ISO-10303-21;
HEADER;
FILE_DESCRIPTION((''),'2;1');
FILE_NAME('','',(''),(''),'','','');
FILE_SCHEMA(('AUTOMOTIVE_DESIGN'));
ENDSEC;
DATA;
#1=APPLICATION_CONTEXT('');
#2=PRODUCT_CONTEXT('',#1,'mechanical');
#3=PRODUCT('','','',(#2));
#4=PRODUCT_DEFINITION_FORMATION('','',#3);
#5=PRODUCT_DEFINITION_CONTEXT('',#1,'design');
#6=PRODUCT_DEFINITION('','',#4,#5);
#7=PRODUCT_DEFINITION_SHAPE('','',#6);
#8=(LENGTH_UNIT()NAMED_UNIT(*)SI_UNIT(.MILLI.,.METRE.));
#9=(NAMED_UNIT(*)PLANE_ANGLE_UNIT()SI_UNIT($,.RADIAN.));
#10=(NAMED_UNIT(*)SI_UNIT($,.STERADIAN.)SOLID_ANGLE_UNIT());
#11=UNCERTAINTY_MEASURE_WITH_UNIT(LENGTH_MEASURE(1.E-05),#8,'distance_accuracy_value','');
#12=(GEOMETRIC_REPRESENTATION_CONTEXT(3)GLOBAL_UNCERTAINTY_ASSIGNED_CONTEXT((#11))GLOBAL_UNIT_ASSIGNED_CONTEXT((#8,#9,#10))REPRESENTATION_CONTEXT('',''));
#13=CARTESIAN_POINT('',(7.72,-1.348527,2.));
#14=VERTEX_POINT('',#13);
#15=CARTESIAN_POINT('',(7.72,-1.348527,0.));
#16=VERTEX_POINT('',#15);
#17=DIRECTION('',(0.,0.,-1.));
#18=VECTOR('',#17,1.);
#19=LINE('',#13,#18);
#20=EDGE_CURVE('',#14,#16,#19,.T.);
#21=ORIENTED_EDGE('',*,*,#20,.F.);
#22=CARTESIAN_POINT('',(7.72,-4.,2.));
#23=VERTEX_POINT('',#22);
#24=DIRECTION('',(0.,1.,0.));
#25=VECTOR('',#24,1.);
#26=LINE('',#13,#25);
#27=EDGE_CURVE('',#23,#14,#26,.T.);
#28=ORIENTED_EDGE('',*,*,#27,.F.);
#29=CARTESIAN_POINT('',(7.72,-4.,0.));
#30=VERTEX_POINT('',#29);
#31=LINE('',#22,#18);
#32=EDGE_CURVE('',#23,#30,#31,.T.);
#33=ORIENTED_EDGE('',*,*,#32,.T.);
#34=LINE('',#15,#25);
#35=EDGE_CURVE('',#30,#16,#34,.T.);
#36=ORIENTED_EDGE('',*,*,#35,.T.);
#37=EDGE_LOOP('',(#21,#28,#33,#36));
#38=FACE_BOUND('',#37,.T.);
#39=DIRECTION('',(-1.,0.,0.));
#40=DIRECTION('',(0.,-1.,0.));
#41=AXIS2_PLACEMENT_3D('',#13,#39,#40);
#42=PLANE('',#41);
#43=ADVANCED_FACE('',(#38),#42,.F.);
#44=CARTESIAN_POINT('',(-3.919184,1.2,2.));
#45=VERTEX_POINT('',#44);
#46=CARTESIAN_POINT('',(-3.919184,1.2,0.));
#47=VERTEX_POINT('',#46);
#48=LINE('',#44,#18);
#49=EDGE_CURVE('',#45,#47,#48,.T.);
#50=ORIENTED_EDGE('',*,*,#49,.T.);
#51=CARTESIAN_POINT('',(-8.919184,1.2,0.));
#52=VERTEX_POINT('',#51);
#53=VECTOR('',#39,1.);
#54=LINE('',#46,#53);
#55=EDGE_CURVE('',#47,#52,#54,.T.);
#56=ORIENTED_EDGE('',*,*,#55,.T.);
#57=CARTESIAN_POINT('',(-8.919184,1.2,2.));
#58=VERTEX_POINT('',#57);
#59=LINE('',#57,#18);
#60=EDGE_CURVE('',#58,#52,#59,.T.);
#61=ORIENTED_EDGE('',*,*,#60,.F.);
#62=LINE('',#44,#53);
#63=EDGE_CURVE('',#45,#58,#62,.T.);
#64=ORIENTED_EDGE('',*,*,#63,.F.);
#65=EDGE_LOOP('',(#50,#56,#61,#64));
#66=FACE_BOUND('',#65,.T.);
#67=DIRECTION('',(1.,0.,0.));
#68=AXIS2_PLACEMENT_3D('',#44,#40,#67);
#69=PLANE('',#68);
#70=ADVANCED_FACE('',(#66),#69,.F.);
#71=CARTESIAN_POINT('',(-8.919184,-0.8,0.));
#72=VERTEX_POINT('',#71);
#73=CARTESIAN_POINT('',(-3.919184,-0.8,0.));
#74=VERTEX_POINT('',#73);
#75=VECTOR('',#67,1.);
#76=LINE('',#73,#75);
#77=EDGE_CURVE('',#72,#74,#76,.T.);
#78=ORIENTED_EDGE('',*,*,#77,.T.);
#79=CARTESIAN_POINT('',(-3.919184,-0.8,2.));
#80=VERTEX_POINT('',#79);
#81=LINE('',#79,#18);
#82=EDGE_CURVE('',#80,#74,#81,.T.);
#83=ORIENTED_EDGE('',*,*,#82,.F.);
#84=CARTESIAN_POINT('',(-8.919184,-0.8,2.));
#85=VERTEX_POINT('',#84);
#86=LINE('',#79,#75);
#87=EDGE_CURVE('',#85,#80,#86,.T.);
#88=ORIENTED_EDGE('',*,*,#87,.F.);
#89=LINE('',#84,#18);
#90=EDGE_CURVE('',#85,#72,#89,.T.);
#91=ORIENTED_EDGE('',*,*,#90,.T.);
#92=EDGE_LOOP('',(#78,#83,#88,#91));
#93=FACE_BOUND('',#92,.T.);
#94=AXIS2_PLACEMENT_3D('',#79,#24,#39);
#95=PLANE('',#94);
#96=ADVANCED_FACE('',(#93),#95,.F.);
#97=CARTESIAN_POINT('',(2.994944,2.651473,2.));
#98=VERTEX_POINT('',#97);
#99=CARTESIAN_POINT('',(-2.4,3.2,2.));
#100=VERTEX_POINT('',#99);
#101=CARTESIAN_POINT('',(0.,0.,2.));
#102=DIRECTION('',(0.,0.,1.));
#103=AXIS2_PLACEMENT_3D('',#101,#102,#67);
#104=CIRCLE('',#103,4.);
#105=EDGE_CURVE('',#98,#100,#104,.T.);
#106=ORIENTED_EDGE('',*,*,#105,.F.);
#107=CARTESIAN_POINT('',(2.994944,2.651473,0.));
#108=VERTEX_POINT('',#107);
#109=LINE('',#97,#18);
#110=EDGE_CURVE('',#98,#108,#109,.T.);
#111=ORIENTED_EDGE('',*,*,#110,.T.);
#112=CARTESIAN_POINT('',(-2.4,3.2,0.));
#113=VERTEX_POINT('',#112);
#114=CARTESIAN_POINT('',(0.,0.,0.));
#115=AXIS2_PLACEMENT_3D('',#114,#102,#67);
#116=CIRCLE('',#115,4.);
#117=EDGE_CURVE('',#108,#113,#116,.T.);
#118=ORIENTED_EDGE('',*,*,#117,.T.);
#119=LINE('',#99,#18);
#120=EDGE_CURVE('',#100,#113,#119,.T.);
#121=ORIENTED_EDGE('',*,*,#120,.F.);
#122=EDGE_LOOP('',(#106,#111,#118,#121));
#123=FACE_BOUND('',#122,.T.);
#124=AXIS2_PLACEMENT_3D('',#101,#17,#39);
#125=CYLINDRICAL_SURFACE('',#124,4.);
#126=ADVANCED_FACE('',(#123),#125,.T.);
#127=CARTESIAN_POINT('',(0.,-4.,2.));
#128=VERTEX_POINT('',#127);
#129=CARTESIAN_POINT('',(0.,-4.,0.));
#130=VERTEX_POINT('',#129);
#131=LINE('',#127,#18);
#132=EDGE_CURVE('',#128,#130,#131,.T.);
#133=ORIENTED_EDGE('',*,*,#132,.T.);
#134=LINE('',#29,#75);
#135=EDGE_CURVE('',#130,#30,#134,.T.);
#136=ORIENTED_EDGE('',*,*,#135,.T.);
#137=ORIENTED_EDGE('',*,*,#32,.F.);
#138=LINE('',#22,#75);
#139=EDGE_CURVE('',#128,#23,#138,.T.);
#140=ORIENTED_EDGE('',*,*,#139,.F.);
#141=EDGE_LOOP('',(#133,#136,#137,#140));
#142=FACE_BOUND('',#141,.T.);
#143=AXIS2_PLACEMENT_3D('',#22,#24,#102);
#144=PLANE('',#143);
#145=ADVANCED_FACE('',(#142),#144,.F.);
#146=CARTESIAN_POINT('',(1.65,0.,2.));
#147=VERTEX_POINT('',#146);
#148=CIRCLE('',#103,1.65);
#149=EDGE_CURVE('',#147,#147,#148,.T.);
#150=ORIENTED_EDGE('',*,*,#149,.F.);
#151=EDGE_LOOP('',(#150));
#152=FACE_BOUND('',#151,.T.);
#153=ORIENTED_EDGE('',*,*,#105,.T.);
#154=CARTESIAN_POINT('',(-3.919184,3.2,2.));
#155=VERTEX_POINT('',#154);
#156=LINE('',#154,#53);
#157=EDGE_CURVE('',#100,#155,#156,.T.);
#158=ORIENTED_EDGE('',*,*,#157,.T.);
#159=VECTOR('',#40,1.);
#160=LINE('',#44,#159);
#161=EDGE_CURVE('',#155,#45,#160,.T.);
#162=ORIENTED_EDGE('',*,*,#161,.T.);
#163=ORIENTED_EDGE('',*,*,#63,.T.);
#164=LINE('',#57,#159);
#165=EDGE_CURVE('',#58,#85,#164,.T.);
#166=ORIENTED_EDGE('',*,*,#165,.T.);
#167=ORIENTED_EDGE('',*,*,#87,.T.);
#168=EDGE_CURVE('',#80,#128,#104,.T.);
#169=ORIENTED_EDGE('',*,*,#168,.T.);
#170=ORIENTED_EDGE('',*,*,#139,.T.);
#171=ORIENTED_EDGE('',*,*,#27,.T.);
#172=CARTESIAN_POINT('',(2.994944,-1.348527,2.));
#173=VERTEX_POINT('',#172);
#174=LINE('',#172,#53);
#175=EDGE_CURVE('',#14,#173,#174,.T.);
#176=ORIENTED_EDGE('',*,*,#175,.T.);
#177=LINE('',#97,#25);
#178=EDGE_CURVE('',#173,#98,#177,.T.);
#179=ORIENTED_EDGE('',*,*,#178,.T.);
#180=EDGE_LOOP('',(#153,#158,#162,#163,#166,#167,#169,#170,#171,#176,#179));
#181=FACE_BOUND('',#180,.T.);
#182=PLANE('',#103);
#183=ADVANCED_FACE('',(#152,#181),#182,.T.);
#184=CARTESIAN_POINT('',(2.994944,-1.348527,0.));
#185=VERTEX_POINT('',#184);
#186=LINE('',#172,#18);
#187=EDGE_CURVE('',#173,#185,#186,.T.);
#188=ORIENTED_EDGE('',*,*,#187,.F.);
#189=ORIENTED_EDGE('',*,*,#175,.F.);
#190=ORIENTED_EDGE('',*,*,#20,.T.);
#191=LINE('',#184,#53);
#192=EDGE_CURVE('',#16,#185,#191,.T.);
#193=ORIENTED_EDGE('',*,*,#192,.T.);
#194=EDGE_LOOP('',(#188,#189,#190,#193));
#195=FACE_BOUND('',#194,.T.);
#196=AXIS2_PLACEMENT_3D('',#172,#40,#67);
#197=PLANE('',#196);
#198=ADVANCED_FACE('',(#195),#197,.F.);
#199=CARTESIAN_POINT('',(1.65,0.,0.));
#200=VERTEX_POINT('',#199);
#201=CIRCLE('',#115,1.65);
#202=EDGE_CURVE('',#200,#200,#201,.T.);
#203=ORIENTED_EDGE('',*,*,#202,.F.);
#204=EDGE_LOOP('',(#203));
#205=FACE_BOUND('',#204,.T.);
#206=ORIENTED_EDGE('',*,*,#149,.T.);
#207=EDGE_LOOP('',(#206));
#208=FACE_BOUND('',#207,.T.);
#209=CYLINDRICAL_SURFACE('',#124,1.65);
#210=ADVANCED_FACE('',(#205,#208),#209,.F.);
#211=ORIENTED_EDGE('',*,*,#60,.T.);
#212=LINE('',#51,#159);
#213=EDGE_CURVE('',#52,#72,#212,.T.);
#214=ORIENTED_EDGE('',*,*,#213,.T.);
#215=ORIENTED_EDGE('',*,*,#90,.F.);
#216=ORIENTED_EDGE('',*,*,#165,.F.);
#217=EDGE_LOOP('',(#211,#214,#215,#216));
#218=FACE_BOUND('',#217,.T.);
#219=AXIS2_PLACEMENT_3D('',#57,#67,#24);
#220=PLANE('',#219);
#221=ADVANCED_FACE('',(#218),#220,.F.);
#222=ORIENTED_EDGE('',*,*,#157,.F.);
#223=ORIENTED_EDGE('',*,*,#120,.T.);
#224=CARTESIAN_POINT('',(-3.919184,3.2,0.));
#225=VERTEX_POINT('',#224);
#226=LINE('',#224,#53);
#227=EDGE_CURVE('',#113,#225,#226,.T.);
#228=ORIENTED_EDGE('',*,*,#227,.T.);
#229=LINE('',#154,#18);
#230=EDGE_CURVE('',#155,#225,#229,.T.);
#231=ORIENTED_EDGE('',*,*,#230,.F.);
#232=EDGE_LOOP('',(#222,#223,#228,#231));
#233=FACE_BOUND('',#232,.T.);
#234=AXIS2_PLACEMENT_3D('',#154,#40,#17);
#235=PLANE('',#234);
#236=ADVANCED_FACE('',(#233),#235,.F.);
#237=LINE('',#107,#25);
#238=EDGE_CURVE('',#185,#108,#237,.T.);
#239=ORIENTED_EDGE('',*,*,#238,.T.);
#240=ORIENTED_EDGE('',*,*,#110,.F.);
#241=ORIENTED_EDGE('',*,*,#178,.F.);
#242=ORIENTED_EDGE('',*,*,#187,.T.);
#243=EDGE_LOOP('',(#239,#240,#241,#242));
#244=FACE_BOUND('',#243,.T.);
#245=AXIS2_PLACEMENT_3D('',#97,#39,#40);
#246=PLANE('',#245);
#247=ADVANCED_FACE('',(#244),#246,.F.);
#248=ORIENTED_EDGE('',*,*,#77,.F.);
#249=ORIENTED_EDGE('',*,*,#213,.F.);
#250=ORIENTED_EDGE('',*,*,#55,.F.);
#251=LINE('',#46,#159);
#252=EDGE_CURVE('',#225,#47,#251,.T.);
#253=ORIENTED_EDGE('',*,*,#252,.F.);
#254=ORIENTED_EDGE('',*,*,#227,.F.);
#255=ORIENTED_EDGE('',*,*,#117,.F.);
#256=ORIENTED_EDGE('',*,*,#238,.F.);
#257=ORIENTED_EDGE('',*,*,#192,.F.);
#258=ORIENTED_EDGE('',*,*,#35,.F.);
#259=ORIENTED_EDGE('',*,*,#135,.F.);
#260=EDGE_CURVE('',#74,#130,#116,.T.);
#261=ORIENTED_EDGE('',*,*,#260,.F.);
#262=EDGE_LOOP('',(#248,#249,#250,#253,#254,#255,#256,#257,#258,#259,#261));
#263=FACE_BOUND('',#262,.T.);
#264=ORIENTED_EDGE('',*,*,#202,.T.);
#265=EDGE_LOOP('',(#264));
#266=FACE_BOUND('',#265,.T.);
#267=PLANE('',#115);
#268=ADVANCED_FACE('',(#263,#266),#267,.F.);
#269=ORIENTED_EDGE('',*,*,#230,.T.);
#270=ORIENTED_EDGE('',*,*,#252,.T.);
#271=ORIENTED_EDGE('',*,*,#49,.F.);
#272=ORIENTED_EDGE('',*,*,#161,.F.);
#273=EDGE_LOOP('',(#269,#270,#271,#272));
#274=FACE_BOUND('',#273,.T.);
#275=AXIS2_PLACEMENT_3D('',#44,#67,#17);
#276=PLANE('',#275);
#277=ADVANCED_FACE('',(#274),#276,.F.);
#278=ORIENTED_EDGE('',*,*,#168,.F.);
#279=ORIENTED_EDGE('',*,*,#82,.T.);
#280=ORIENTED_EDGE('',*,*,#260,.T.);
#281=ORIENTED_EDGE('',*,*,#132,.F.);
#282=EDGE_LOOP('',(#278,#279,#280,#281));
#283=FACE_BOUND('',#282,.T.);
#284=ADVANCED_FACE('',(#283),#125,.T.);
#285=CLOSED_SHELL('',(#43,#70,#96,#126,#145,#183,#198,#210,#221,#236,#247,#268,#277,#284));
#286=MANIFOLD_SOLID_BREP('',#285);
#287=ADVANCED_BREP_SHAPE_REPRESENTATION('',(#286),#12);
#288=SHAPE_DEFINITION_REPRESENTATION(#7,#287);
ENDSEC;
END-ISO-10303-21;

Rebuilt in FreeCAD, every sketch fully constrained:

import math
import FreeCAD as App
import Part
import Sketcher

V = App.Vector
Q = App.Units.Quantity

doc = App.newDocument("Part")
body = doc.addObject("PartDesign::Body", "Body")

sketch1 = body.newObject("Sketcher::SketchObject", "Sketch")
sketch1.AttachmentSupport = (doc.getObject("XY_Plane"), [""])
sketch1.MapMode = "FlatFace"
sketch1.addGeometry(Part.LineSegment(V(0, -4, 0), V(7.72, -4, 0)), False)
sketch1.addGeometry(Part.LineSegment(V(7.72, -4, 0), V(7.72, -1.348527, 0)), False)
sketch1.addGeometry(Part.LineSegment(V(7.72, -1.348527, 0), V(2.994944, -1.348527, 0)), False)
sketch1.addGeometry(Part.LineSegment(V(2.994944, -1.348527, 0), V(2.994944, 2.651473, 0)), False)
sketch1.addGeometry(Part.ArcOfCircle(Part.Circle(V(0, 0, 0), V(0, 0, 1), 4), math.radians(41.518994), math.radians(126.869898)), False)
sketch1.addGeometry(Part.LineSegment(V(-2.4, 3.2, 0), V(-3.919184, 3.2, 0)), False)
sketch1.addGeometry(Part.LineSegment(V(-3.919184, 3.2, 0), V(-3.919184, 1.2, 0)), False)
sketch1.addGeometry(Part.LineSegment(V(-3.919184, 1.2, 0), V(-8.919184, 1.2, 0)), False)
sketch1.addGeometry(Part.LineSegment(V(-8.919184, 1.2, 0), V(-8.919184, -0.8, 0)), False)
sketch1.addGeometry(Part.LineSegment(V(-8.919184, -0.8, 0), V(-3.919184, -0.8, 0)), False)
sketch1.addGeometry(Part.ArcOfCircle(Part.Circle(V(0, 0, 0), V(0, 0, 1), 4), math.radians(-168.463041), math.radians(-90)), False)
sketch1.addGeometry(Part.Circle(V(0, 0, 0), V(0, 0, 1), 1.65), False)
sketch1.addConstraint(Sketcher.Constraint("Coincident", 0, 2, 1, 1))
sketch1.addConstraint(Sketcher.Constraint("Coincident", 1, 2, 2, 1))
sketch1.addConstraint(Sketcher.Constraint("Coincident", 2, 2, 3, 1))
sketch1.addConstraint(Sketcher.Constraint("Coincident", 3, 2, 4, 1))
sketch1.addConstraint(Sketcher.Constraint("Coincident", 4, 2, 5, 1))
sketch1.addConstraint(Sketcher.Constraint("Coincident", 5, 2, 6, 1))
sketch1.addConstraint(Sketcher.Constraint("Coincident", 6, 2, 7, 1))
sketch1.addConstraint(Sketcher.Constraint("Coincident", 7, 2, 8, 1))
sketch1.addConstraint(Sketcher.Constraint("Coincident", 8, 2, 9, 1))
sketch1.addConstraint(Sketcher.Constraint("Coincident", 9, 2, 10, 1))
sketch1.addConstraint(Sketcher.Constraint("Tangent", 10, 2, 0, 1))
sketch1.addConstraint(Sketcher.Constraint("Horizontal", 0))
sketch1.addConstraint(Sketcher.Constraint("Vertical", 1))
sketch1.addConstraint(Sketcher.Constraint("Horizontal", 2))
sketch1.addConstraint(Sketcher.Constraint("Vertical", 3))
sketch1.addConstraint(Sketcher.Constraint("Horizontal", 5))
sketch1.addConstraint(Sketcher.Constraint("Vertical", 6))
sketch1.addConstraint(Sketcher.Constraint("Horizontal", 7))
sketch1.addConstraint(Sketcher.Constraint("Vertical", 8))
sketch1.addConstraint(Sketcher.Constraint("Horizontal", 9))
sketch1.addConstraint(Sketcher.Constraint("Coincident", 4, 3, -1, 1))
sketch1.addConstraint(Sketcher.Constraint("Coincident", 10, 3, -1, 1))
sketch1.addConstraint(Sketcher.Constraint("Coincident", 11, 3, -1, 1))
sketch1.addConstraint(Sketcher.Constraint("Equal", 4, 10))
sketch1.addConstraint(Sketcher.Constraint("Vertical", 6, 2, 9, 2))
sketch1.addConstraint(Sketcher.Constraint("Equal", 6, 8))
sketch1.addConstraint(Sketcher.Constraint("Radius", 4, Q("4 mm")))
sketch1.addConstraint(Sketcher.Constraint("Diameter", 11, Q("3.3 mm")))
sketch1.addConstraint(Sketcher.Constraint("DistanceX", 7, 2, 7, 1, Q("5 mm")))
sketch1.addConstraint(Sketcher.Constraint("DistanceY", 3, 1, 3, 2, Q("4 mm")))
sketch1.addConstraint(Sketcher.Constraint("DistanceY", 6, 2, 6, 1, Q("2 mm")))
sketch1.addConstraint(Sketcher.Constraint("DistanceX", 0, 1, 0, 2, Q("7.72 mm")))
sketch1.addConstraint(Sketcher.Constraint("DistanceX", 4, 2, -1, 1, Q("2.4 mm")))
sketch1.addConstraint(Sketcher.Constraint("DistanceX", 2, 2, 2, 1, Q("4.725056 mm")))
pad1 = body.newObject("PartDesign::Pad", "Pad")
pad1.Profile = sketch1
pad1.Length = 2

doc.recompute()
